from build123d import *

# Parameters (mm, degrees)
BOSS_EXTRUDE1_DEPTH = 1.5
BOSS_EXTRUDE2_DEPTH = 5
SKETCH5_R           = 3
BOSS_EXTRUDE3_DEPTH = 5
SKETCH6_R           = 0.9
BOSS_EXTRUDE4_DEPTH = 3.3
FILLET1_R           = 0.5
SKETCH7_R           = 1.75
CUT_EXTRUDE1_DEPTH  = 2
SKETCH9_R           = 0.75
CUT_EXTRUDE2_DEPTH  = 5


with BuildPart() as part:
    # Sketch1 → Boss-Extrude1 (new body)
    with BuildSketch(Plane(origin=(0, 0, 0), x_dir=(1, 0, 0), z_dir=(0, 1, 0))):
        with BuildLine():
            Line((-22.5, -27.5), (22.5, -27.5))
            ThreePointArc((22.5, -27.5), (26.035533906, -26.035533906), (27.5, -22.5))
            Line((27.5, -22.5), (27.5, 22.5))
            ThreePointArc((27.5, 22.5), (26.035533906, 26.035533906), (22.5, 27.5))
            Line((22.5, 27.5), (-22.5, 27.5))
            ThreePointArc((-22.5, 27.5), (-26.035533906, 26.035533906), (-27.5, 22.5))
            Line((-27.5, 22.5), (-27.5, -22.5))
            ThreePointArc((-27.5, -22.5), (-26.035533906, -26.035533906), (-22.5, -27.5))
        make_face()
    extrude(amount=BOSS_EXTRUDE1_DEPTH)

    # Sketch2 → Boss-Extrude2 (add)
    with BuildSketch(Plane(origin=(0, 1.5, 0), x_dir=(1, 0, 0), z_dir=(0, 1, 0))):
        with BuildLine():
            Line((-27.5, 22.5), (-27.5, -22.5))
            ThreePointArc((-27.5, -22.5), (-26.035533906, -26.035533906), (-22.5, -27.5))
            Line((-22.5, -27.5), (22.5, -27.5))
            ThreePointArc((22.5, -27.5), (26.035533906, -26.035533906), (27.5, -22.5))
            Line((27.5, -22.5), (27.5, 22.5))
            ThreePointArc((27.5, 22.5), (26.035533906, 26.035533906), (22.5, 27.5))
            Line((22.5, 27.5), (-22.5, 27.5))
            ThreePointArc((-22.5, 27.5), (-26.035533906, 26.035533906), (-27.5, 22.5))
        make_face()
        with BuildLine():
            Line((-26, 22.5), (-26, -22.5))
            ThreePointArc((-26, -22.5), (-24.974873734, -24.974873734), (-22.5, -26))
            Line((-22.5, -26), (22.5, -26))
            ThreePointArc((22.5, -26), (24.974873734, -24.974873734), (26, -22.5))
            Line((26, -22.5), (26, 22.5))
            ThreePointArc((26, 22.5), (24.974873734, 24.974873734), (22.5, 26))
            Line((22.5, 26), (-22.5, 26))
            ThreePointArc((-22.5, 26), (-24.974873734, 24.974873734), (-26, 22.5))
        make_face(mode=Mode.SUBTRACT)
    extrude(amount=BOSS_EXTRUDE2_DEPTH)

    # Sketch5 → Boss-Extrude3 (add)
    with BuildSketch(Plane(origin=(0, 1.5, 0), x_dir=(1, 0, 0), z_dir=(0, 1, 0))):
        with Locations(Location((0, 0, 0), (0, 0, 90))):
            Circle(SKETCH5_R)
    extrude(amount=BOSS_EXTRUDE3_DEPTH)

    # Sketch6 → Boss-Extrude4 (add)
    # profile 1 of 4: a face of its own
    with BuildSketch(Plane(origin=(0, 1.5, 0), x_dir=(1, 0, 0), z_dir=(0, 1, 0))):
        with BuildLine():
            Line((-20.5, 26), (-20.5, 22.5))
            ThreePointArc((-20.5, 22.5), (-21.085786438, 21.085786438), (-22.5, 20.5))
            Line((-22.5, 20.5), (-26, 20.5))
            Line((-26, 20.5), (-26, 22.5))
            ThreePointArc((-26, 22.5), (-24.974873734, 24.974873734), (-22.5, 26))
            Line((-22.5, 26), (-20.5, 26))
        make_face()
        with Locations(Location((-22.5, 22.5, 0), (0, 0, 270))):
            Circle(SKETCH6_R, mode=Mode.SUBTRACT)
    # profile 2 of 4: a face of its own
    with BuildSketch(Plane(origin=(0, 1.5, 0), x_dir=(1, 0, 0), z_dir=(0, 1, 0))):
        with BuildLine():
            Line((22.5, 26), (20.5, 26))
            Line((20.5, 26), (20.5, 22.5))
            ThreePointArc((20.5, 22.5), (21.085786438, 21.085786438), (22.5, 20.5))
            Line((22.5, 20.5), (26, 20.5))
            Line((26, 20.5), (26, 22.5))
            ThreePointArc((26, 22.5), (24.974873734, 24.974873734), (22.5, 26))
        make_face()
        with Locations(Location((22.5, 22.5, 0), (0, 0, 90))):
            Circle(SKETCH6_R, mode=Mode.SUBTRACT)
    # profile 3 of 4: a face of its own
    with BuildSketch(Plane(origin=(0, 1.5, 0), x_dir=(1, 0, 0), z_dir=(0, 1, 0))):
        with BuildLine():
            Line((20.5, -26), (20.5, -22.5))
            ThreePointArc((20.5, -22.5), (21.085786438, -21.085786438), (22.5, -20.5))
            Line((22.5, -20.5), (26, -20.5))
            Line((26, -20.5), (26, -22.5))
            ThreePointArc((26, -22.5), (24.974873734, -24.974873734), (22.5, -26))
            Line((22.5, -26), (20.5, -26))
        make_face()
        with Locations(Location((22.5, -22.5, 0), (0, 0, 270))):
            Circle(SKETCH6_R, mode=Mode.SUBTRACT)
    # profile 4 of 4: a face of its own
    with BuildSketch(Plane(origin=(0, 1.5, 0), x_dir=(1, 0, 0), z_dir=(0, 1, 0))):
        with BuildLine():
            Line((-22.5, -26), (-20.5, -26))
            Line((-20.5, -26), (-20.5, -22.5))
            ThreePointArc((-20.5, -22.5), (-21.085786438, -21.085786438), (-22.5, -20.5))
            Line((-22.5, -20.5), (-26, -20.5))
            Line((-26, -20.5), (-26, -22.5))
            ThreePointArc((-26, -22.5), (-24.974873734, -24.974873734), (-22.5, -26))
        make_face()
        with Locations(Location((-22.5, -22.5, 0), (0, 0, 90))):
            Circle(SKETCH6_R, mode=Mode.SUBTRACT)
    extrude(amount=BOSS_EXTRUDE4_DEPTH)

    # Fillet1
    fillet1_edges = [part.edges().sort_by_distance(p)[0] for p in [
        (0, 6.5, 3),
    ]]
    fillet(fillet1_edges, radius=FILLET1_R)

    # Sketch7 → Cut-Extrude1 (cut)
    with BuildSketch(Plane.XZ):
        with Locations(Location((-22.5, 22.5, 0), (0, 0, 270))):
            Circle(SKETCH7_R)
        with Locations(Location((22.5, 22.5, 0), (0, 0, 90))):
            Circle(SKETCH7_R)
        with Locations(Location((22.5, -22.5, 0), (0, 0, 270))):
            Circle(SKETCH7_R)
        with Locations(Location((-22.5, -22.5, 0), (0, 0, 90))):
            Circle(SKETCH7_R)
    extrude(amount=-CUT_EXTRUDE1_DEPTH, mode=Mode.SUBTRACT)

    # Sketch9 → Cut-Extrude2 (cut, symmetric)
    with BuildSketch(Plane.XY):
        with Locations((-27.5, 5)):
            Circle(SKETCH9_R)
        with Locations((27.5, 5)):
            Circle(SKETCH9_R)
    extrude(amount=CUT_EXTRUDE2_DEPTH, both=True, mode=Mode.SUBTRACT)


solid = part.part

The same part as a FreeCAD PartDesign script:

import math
import FreeCAD as App
import Part
import Sketcher

V = App.Vector


def edges_at(feature, points):
    """Names of the edges that pass closest to the given points."""
    edges = feature.Shape.Edges
    near = lambda p: min(range(len(edges)), key=lambda i: edges[i].distToShape(Part.Vertex(*p))[0])
    return sorted({f"Edge{near(p) + 1}" for p in points})

doc = App.newDocument("Part")
body = doc.addObject("PartDesign::Body", "Body")

# Sketch on XZ plane
sketch1 = body.newObject("Sketcher::SketchObject", "Sketch")
sketch1.AttachmentSupport = (doc.getObject("XZ_Plane"), [""])
sketch1.MapMode = "FlatFace"
sketch1.addGeometry([
    Part.LineSegment(V(-22.5, 27.5, 0), V(22.5, 27.5, 0)),  # 0
    Part.ArcOfCircle(Part.Circle(V(22.5, 22.5, 0), V(0, 0, 1), 5), math.radians(0), math.radians(90)),  # 1
    Part.LineSegment(V(27.5, 22.5, 0), V(27.5, -22.5, 0)),  # 2
    Part.ArcOfCircle(Part.Circle(V(22.5, -22.5, 0), V(0, 0, 1), 5), math.radians(-90), math.radians(0)),  # 3
    Part.LineSegment(V(22.5, -27.5, 0), V(-22.5, -27.5, 0)),  # 4
    Part.ArcOfCircle(Part.Circle(V(-22.5, -22.5, 0), V(0, 0, 1), 5), math.radians(180), math.radians(270)),  # 5
    Part.LineSegment(V(-27.5, -22.5, 0), V(-27.5, 22.5, 0)),  # 6
    Part.ArcOfCircle(Part.Circle(V(-22.5, 22.5, 0), V(0, 0, 1), 5), math.radians(90), math.radians(180)),  # 7
], False)
sketch1.addConstraint([
    Sketcher.Constraint("Tangent", 0, 2, 1, 2),
    Sketcher.Constraint("Tangent", 1, 1, 2, 1),
    Sketcher.Constraint("Tangent", 2, 2, 3, 2),
    Sketcher.Constraint("Tangent", 3, 1, 4, 1),
    Sketcher.Constraint("Tangent", 4, 2, 5, 2),
    Sketcher.Constraint("Tangent", 5, 1, 6, 1),
    Sketcher.Constraint("Tangent", 6, 2, 7, 2),
    Sketcher.Constraint("Tangent", 7, 1, 0, 1),
    Sketcher.Constraint("Horizontal", 0),
    Sketcher.Constraint("Vertical", 2),
    Sketcher.Constraint("Horizontal", 4),
    Sketcher.Constraint("Vertical", 6),
    Sketcher.Constraint("Equal", 1, 3),
    Sketcher.Constraint("Equal", 3, 5),
    Sketcher.Constraint("Equal", 5, 7),
    Sketcher.Constraint("Symmetric", 1, 3, 5, 3, -1, 1),
    Sketcher.Constraint("Equal", 4, 2),
    Sketcher.Constraint("Radius", 1, 5.0),
    Sketcher.Constraint("DistanceX", 0, 1, 0, 2, 45.0),
])
pad1 = body.newObject("PartDesign::Pad", "Pad")
pad1.Profile = sketch1
pad1.Length = 1.5
pad1.Reversed = True

# Sketch on XZ plane
sketch2 = body.newObject("Sketcher::SketchObject", "Sketch001")
sketch2.AttachmentSupport = (doc.getObject("XZ_Plane"), [""])
sketch2.MapMode = "FlatFace"
sketch2.AttachmentOffset = App.Placement(V(0, 0, -1.5), App.Rotation())
sketch2.addGeometry([
    Part.LineSegment(V(-27.5, -22.5, 0), V(-27.5, 22.5, 0)),  # 0
    Part.ArcOfCircle(Part.Circle(V(-22.5, 22.5, 0), V(0, 0, 1), 5), math.radians(90), math.radians(180)),  # 1
    Part.LineSegment(V(-22.5, 27.5, 0), V(22.5, 27.5, 0)),  # 2
    Part.ArcOfCircle(Part.Circle(V(22.5, 22.5, 0), V(0, 0, 1), 5), math.radians(0), math.radians(90)),  # 3
    Part.LineSegment(V(27.5, 22.5, 0), V(27.5, -22.5, 0)),  # 4
    Part.ArcOfCircle(Part.Circle(V(22.5, -22.5, 0), V(0, 0, 1), 5), math.radians(-90), math.radians(0)),  # 5
    Part.LineSegment(V(22.5, -27.5, 0), V(-22.5, -27.5, 0)),  # 6
    Part.ArcOfCircle(Part.Circle(V(-22.5, -22.5, 0), V(0, 0, 1), 5), math.radians(180), math.radians(270)),  # 7
    Part.LineSegment(V(-26, 22.5, 0), V(-26, -22.5, 0)),  # 8
    Part.ArcOfCircle(Part.Circle(V(-22.5, -22.5, 0), V(0, 0, 1), 3.5), math.radians(-180), math.radians(-90)),  # 9
    Part.LineSegment(V(-22.5, -26, 0), V(22.5, -26, 0)),  # 10
    Part.ArcOfCircle(Part.Circle(V(22.5, -22.5, 0), V(0, 0, 1), 3.5), math.radians(-90), math.radians(0)),  # 11
    Part.LineSegment(V(26, -22.5, 0), V(26, 22.5, 0)),  # 12
    Part.ArcOfCircle(Part.Circle(V(22.5, 22.5, 0), V(0, 0, 1), 3.5), math.radians(0), math.radians(90)),  # 13
    Part.LineSegment(V(22.5, 26, 0), V(-22.5, 26, 0)),  # 14
    Part.ArcOfCircle(Part.Circle(V(-22.5, 22.5, 0), V(0, 0, 1), 3.5), math.radians(90), math.radians(180)),  # 15
], False)
sketch2.addConstraint([
    Sketcher.Constraint("Tangent", 0, 2, 1, 2),
    Sketcher.Constraint("Tangent", 1, 1, 2, 1),
    Sketcher.Constraint("Tangent", 2, 2, 3, 2),
    Sketcher.Constraint("Tangent", 3, 1, 4, 1),
    Sketcher.Constraint("Tangent", 4, 2, 5, 2),
    Sketcher.Constraint("Tangent", 5, 1, 6, 1),
    Sketcher.Constraint("Tangent", 6, 2, 7, 2),
    Sketcher.Constraint("Tangent", 7, 1, 0, 1),
    Sketcher.Constraint("Tangent", 8, 2, 9, 1),
    Sketcher.Constraint("Tangent", 9, 2, 10, 1),
    Sketcher.Constraint("Tangent", 10, 2, 11, 1),
    Sketcher.Constraint("Tangent", 11, 2, 12, 1),
    Sketcher.Constraint("Tangent", 12, 2, 13, 1),
    Sketcher.Constraint("Tangent", 13, 2, 14, 1),
    Sketcher.Constraint("Tangent", 14, 2, 15, 1),
    Sketcher.Constraint("Tangent", 15, 2, 8, 1),
    Sketcher.Constraint("Vertical", 0),
    Sketcher.Constraint("Horizontal", 2),
    Sketcher.Constraint("Vertical", 4),
    Sketcher.Constraint("Horizontal", 6),
    Sketcher.Constraint("Vertical", 8),
    Sketcher.Constraint("Horizontal", 10),
    Sketcher.Constraint("Vertical", 12),
    Sketcher.Constraint("Horizontal", 14),
    Sketcher.Constraint("Coincident", 9, 3, 7, 3),
    Sketcher.Constraint("Coincident", 11, 3, 5, 3),
    Sketcher.Constraint("Coincident", 13, 3, 3, 3),
    Sketcher.Constraint("Equal", 1, 3),
    Sketcher.Constraint("Equal", 3, 5),
    Sketcher.Constraint("Equal", 5, 7),
    Sketcher.Constraint("Equal", 13, 15),
    Sketcher.Constraint("Symmetric", 1, 3, 5, 3, -1, 1),
    Sketcher.Constraint("Equal", 14, 0),
    Sketcher.Constraint("Radius", 1, 5.0),
    Sketcher.Constraint("Radius", 9, 3.5),
    Sketcher.Constraint("DistanceX", 2, 1, 2, 2, 45.0),
])
pad2 = body.newObject("PartDesign::Pad", "Pad001")
pad2.Profile = sketch2
pad2.Length = 5
pad2.Reversed = True

# Sketch on XZ plane
sketch3 = body.newObject("Sketcher::SketchObject", "Sketch002")
sketch3.AttachmentSupport = (doc.getObject("XZ_Plane"), [""])
sketch3.MapMode = "FlatFace"
sketch3.AttachmentOffset = App.Placement(V(0, 0, -1.5), App.Rotation())
sketch3.addGeometry(Part.Circle(V(0, 0, 0), V(0, 0, 1), 3), False)
sketch3.addConstraint([
    Sketcher.Constraint("Coincident", 0, 3, -1, 1),
    Sketcher.Constraint("Diameter", 0, 6.0),
])
pad3 = body.newObject("PartDesign::Pad", "Pad002")
pad3.Profile = sketch3
pad3.Length = 5
pad3.Reversed = True

# Sketch on XZ plane
sketch4 = body.newObject("Sketcher::SketchObject", "Sketch003")
sketch4.AttachmentSupport = (doc.getObject("XZ_Plane"), [""])
sketch4.MapMode = "FlatFace"
sketch4.AttachmentOffset = App.Placement(V(0, 0, -1.5), App.Rotation())
sketch4.addGeometry([
    Part.LineSegment(V(-20.5, -22.5, 0), V(-20.5, -26, 0)),  # 0
    Part.LineSegment(V(-20.5, -26, 0), V(-22.5, -26, 0)),  # 1
    Part.ArcOfCircle(Part.Circle(V(-22.5, -22.5, 0), V(0, 0, 1), 3.5), math.radians(-180), math.radians(-90)),  # 2
    Part.LineSegment(V(-26, -22.5, 0), V(-26, -20.5, 0)),  # 3
    Part.LineSegment(V(-26, -20.5, 0), V(-22.5, -20.5, 0)),  # 4
    Part.ArcOfCircle(Part.Circle(V(-22.5, -22.5, 0), V(0, 0, 1), 2), math.radians(0), math.radians(90)),  # 5
    Part.Circle(V(-22.5, -22.5, 0), V(0, 0, 1), 0.9),  # 6
    Part.LineSegment(V(22.5, -26, 0), V(20.5, -26, 0)),  # 7
    Part.LineSegment(V(20.5, -26, 0), V(20.5, -22.5, 0)),  # 8
    Part.ArcOfCircle(Part.Circle(V(22.5, -22.5, 0), V(0, 0, 1), 2), math.radians(90), math.radians(180)),  # 9
    Part.LineSegment(V(22.5, -20.5, 0), V(26, -20.5, 0)),  # 10
    Part.LineSegment(V(26, -20.5, 0), V(26, -22.5, 0)),  # 11
    Part.ArcOfCircle(Part.Circle(V(22.5, -22.5, 0), V(0, 0, 1), 3.5), math.radians(-90), math.radians(0)),  # 12
    Part.Circle(V(22.5, -22.5, 0), V(0, 0, 1), 0.9),  # 13
    Part.LineSegment(V(20.5, 22.5, 0), V(20.5, 26, 0)),  # 14
    Part.LineSegment(V(20.5, 26, 0), V(22.5, 26, 0)),  # 15
    Part.ArcOfCircle(Part.Circle(V(22.5, 22.5, 0), V(0, 0, 1), 3.5), math.radians(0), math.radians(90)),  # 16
    Part.LineSegment(V(26, 22.5, 0), V(26, 20.5, 0)),  # 17
    Part.LineSegment(V(26, 20.5, 0), V(22.5, 20.5, 0)),  # 18
    Part.ArcOfCircle(Part.Circle(V(22.5, 22.5, 0), V(0, 0, 1), 2), math.radians(-180), math.radians(-90)),  # 19
    Part.Circle(V(22.5, 22.5, 0), V(0, 0, 1), 0.9),  # 20
    Part.LineSegment(V(-22.5, 26, 0), V(-20.5, 26, 0)),  # 21
    Part.LineSegment(V(-20.5, 26, 0), V(-20.5, 22.5, 0)),  # 22
    Part.ArcOfCircle(Part.Circle(V(-22.5, 22.5, 0), V(0, 0, 1), 2), math.radians(-90), math.radians(0)),  # 23
    Part.LineSegment(V(-22.5, 20.5, 0), V(-26, 20.5, 0)),  # 24
    Part.LineSegment(V(-26, 20.5, 0), V(-26, 22.5, 0)),  # 25
    Part.ArcOfCircle(Part.Circle(V(-22.5, 22.5, 0), V(0, 0, 1), 3.5), math.radians(90), math.radians(180)),  # 26
    Part.Circle(V(-22.5, 22.5, 0), V(0, 0, 1), 0.9),  # 27
], False)
sketch4.addConstraint([
    Sketcher.Constraint("Coincident", 0, 2, 1, 1),
    Sketcher.Constraint("Tangent", 1, 2, 2, 2),
    Sketcher.Constraint("Tangent", 2, 1, 3, 1),
    Sketcher.Constraint("Coincident", 3, 2, 4, 1),
    Sketcher.Constraint("Tangent", 4, 2, 5, 2),
    Sketcher.Constraint("Tangent", 5, 1, 0, 1),
    Sketcher.Constraint("Coincident", 7, 2, 8, 1),
    Sketcher.Constraint("Tangent", 8, 2, 9, 2),
    Sketcher.Constraint("Tangent", 9, 1, 10, 1),
    Sketcher.Constraint("Coincident", 10, 2, 11, 1),
    Sketcher.Constraint("Tangent", 11, 2, 12, 2),
    Sketcher.Constraint("Tangent", 12, 1, 7, 1),
    Sketcher.Constraint("Coincident", 14, 2, 15, 1),
    Sketcher.Constraint("Tangent", 15, 2, 16, 2),
    Sketcher.Constraint("Tangent", 16, 1, 17, 1),
    Sketcher.Constraint("Coincident", 17, 2, 18, 1),
    Sketcher.Constraint("Tangent", 18, 2, 19, 2),
    Sketcher.Constraint("Tangent", 19, 1, 14, 1),
    Sketcher.Constraint("Coincident", 21, 2, 22, 1),
    Sketcher.Constraint("Tangent", 22, 2, 23, 2),
    Sketcher.Constraint("Tangent", 23, 1, 24, 1),
    Sketcher.Constraint("Coincident", 24, 2, 25, 1),
    Sketcher.Constraint("Tangent", 25, 2, 26, 2),
    Sketcher.Constraint("Tangent", 26, 1, 21, 1),
    Sketcher.Constraint("Vertical", 0),
    Sketcher.Constraint("Horizontal", 1),
    Sketcher.Constraint("Vertical", 3),
    Sketcher.Constraint("Horizontal", 4),
    Sketcher.Constraint("Horizontal", 7),
    Sketcher.Constraint("Vertical", 8),
    Sketcher.Constraint("Horizontal", 10),
    Sketcher.Constraint("Vertical", 11),
    Sketcher.Constraint("Vertical", 14),
    Sketcher.Constraint("Horizontal", 15),
    Sketcher.Constraint("Vertical", 17),
    Sketcher.Constraint("Horizontal", 18),
    Sketcher.Constraint("Horizontal", 21),
    Sketcher.Constraint("Vertical", 22),
    Sketcher.Constraint("Horizontal", 24),
    Sketcher.Constraint("Vertical", 25),
    Sketcher.Constraint("Coincident", 5, 3, 2, 3),
    Sketcher.Constraint("Coincident", 6, 3, 2, 3),
    Sketcher.Constraint("Coincident", 12, 3, 9, 3),
    Sketcher.Constraint("Coincident", 13, 3, 9, 3),
    Sketcher.Constraint("Coincident", 19, 3, 16, 3),
    Sketcher.Constraint("Coincident", 20, 3, 16, 3),
    Sketcher.Constraint("Coincident", 26, 3, 23, 3),
    Sketcher.Constraint("Coincident", 27, 3, 23, 3),
    Sketcher.Constraint("Equal", 5, 9),
    Sketcher.Constraint("Equal", 2, 12),
    Sketcher.Constraint("Equal", 6, 13),
    Sketcher.Constraint("Equal", 12, 16),
    Sketcher.Constraint("Equal", 9, 19),
    Sketcher.Constraint("Equal", 13, 20),
    Sketcher.Constraint("Equal", 19, 23),
    Sketcher.Constraint("Equal", 16, 26),
    Sketcher.Constraint("Equal", 20, 27),
    Sketcher.Constraint("Symmetric", 2, 3, 16, 3, -1, 1),
    Sketcher.Constraint("Symmetric", 9, 3, 23, 3, -1, 1),
    Sketcher.Constraint("Symmetric", 2, 3, 9, 3, -2),
    Sketcher.Constraint("Radius", 5, 2.0),
    Sketcher.Constraint("Diameter", 6, 1.8),
    Sketcher.Constraint("Radius", 2, 3.5),
    Sketcher.Constraint("DistanceY", 0, 2, -1, 1, 26.0),
    Sketcher.Constraint("DistanceX", 2, 1, -1, 1, 26.0),
])
pad4 = body.newObject("PartDesign::Pad", "Pad003")
pad4.Profile = sketch4
pad4.Length = 3.3
pad4.Reversed = True
doc.recompute()

fillet = body.newObject("PartDesign::Fillet", "Fillet")
fillet.Base = (pad4, edges_at(pad4, [(0, 6.5, 3)]))
fillet.Radius = 0.5

# Sketch on XZ plane
sketch5 = body.newObject("Sketcher::SketchObject", "Sketch004")
sketch5.AttachmentSupport = (doc.getObject("XZ_Plane"), [""])
sketch5.MapMode = "FlatFace"
sketch5.addGeometry([
    Part.Circle(V(-22.5, 22.5, 0), V(0, 0, 1), 1.75),
    Part.Circle(V(22.5, 22.5, 0), V(0, 0, 1), 1.75),
    Part.Circle(V(22.5, -22.5, 0), V(0, 0, 1), 1.75),
    Part.Circle(V(-22.5, -22.5, 0), V(0, 0, 1), 1.75),
], False)
sketch5.addConstraint([
    Sketcher.Constraint("Equal", 0, 1),
    Sketcher.Constraint("Equal", 1, 2),
    Sketcher.Constraint("Equal", 2, 3),
    Sketcher.Constraint("Symmetric", 0, 3, 2, 3, -1, 1),
    Sketcher.Constraint("Symmetric", 1, 3, 3, 3, -1, 1),
    Sketcher.Constraint("Symmetric", 0, 3, 1, 3, -2),
    Sketcher.Constraint("Diameter", 0, 3.5),
    Sketcher.Constraint("DistanceX", 0, 3, 1, 3, 45.0),
    Sketcher.Constraint("DistanceY", 2, 3, 1, 3, 45.0),
])
pocket1 = body.newObject("PartDesign::Pocket", "Pocket")
pocket1.Profile = sketch5
pocket1.Length = 2

# Sketch on XY plane
sketch6 = body.newObject("Sketcher::SketchObject", "Sketch005")
sketch6.AttachmentSupport = (doc.getObject("XY_Plane"), [""])
sketch6.MapMode = "FlatFace"
sketch6.addGeometry([
    Part.Circle(V(-27.5, 5, 0), V(0, 0, 1), 0.75),
    Part.Circle(V(27.5, 5, 0), V(0, 0, 1), 0.75),
], False)
sketch6.addConstraint([
    Sketcher.Constraint("Equal", 0, 1),
    Sketcher.Constraint("Symmetric", 0, 3, 1, 3, -2),
    Sketcher.Constraint("Diameter", 0, 1.5),
    Sketcher.Constraint("DistanceY", -1, 1, 0, 3, 5.0),
    Sketcher.Constraint("DistanceX", 0, 3, 1, 3, 55.0),
])
pocket2 = body.newObject("PartDesign::Pocket", "Pocket001")
pocket2.Profile = sketch6
pocket2.Length = 10
pocket2.Midplane = True

doc.recompute()
